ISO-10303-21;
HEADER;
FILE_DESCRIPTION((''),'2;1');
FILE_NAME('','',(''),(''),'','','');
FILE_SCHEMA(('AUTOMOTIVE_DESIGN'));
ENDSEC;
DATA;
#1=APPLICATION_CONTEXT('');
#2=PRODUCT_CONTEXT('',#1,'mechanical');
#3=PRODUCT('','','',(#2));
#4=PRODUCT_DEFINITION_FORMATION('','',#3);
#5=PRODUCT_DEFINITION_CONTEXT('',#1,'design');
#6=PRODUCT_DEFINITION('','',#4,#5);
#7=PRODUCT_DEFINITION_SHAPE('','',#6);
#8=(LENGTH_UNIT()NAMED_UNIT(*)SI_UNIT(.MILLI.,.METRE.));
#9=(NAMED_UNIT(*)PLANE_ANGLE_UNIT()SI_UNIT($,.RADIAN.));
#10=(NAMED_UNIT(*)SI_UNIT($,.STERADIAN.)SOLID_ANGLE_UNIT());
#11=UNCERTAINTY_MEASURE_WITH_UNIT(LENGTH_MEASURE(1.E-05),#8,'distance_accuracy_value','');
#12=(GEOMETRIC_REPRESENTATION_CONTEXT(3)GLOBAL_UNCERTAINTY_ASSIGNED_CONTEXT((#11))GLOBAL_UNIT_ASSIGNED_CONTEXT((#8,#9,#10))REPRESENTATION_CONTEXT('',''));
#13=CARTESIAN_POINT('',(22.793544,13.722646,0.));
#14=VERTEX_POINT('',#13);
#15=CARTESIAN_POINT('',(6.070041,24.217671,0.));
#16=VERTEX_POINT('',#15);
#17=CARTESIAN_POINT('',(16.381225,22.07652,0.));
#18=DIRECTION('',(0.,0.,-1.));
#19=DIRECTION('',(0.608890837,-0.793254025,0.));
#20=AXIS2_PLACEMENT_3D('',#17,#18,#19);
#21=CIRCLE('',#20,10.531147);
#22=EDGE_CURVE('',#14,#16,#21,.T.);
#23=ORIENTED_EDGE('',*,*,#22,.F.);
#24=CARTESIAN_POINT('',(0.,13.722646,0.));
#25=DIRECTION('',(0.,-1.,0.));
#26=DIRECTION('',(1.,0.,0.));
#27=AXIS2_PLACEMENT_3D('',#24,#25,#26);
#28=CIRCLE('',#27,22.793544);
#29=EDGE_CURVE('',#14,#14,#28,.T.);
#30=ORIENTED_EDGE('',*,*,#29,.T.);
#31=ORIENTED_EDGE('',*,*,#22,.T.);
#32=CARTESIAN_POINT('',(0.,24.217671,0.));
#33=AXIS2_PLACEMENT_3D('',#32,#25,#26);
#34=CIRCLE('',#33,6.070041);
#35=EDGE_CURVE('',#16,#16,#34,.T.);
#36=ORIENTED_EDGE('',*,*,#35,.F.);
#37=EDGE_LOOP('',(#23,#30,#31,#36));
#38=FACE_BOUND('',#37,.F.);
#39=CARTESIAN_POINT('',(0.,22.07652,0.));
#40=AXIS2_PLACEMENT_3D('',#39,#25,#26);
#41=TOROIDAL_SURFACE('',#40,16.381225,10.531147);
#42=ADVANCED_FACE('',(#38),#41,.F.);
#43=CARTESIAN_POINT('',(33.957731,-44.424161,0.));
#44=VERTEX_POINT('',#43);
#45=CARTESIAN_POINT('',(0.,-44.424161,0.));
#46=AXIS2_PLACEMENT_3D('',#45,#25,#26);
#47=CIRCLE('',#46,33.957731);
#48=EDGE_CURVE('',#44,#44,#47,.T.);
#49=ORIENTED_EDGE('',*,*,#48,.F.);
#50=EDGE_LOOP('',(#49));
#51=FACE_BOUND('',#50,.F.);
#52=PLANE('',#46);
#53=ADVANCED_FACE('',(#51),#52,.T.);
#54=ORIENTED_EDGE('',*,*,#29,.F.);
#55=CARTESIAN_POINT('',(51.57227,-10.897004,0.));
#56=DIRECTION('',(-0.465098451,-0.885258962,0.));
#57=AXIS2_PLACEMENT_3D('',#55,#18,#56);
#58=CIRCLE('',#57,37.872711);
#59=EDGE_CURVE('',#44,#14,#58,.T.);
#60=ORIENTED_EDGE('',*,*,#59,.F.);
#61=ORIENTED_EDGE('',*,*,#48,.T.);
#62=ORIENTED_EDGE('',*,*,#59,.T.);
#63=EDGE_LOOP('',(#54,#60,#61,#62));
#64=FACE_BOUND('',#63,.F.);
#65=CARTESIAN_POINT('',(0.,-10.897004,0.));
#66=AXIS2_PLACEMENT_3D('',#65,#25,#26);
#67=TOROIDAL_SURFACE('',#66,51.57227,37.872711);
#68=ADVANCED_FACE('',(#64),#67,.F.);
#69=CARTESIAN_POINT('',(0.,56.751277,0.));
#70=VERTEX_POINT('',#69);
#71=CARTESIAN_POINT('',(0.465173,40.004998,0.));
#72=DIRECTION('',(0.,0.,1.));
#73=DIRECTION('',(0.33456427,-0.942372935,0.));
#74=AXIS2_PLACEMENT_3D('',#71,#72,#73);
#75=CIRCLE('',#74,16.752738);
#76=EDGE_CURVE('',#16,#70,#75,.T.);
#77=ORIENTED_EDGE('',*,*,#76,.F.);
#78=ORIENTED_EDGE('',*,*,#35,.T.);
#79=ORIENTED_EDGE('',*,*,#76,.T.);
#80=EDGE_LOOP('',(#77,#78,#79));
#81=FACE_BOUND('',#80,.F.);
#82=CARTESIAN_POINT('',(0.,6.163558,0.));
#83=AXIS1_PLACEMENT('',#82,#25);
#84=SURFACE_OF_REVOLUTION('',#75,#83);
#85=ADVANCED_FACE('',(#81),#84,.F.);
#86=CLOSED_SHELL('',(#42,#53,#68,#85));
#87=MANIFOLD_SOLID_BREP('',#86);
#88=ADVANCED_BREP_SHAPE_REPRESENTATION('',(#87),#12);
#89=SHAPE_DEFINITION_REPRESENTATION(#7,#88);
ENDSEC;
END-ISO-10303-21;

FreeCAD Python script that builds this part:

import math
import FreeCAD as App
import Part
import Sketcher

V = App.Vector

doc = App.newDocument("Part")
body = doc.addObject("PartDesign::Body", "Body")

# Sketch on XY plane
sketch1 = body.newObject("Sketcher::SketchObject", "Sketch")
sketch1.AttachmentSupport = (doc.getObject("XY_Plane"), [""])
sketch1.MapMode = "FlatFace"
sketch1.addGeometry([
    Part.ArcOfCircle(Part.Circle(V(0.465173, 40.004998, 0), V(0, 0, 1), 16.752738), math.radians(-70.453956), math.radians(91.591137)),  # 0
    Part.LineSegment(V(0, 56.751277, 0), V(0, -44.424161, 0)),  # 1
    Part.LineSegment(V(0, -44.424161, 0), V(33.957731, -44.424161, 0)),  # 2
    Part.ArcOfCircle(Part.Circle(V(51.57227, -10.897004, 0), V(0, 0, 1), 37.872711), math.radians(139.453645), math.radians(242.283406)),  # 3
    Part.ArcOfCircle(Part.Circle(V(16.381225, 22.07652, 0), V(0, 0, 1), 10.531147), math.radians(168.269063), math.radians(307.509346)),  # 4
], False)
sketch1.addConstraint([
    Sketcher.Constraint("Coincident", 0, 2, 1, 1),
    Sketcher.Constraint("Coincident", 1, 2, 2, 1),
    Sketcher.Constraint("Coincident", 2, 2, 3, 2),
    Sketcher.Constraint("Coincident", 3, 1, 4, 2),
    Sketcher.Constraint("Coincident", 4, 1, 0, 1),
    Sketcher.Constraint("Vertical", 1),
    Sketcher.Constraint("Horizontal", 2),
    Sketcher.Constraint("PointOnObject", 0, 2, -2),
    Sketcher.Constraint("Radius", 0, 16.752738),
    Sketcher.Constraint("Radius", 3, 37.872711),
    Sketcher.Constraint("DistanceY", -1, 1, 0, 3, 40.004998),
    Sketcher.Constraint("Radius", 4, 10.531147),
    Sketcher.Constraint("DistanceX", 2, 1, 2, 2, 33.957731),
    Sketcher.Constraint("DistanceY", 1, 2, 1, 1, 101.175438),
    Sketcher.Constraint("DistanceX", -1, 1, 3, 3, 51.57227),
    Sketcher.Constraint("DistanceY", -1, 1, 4, 3, 22.07652),
    Sketcher.Constraint("DistanceY", 1, 2, -1, 1, 44.424161),
    Sketcher.Constraint("DistanceX", -1, 1, 4, 1, 6.070041),
])
revolution = body.newObject("PartDesign::Revolution", "Revolution")
revolution.Profile = sketch1
revolution.ReferenceAxis = (sketch1, ["V_Axis"])
revolution.Angle = 360

doc.recompute()
